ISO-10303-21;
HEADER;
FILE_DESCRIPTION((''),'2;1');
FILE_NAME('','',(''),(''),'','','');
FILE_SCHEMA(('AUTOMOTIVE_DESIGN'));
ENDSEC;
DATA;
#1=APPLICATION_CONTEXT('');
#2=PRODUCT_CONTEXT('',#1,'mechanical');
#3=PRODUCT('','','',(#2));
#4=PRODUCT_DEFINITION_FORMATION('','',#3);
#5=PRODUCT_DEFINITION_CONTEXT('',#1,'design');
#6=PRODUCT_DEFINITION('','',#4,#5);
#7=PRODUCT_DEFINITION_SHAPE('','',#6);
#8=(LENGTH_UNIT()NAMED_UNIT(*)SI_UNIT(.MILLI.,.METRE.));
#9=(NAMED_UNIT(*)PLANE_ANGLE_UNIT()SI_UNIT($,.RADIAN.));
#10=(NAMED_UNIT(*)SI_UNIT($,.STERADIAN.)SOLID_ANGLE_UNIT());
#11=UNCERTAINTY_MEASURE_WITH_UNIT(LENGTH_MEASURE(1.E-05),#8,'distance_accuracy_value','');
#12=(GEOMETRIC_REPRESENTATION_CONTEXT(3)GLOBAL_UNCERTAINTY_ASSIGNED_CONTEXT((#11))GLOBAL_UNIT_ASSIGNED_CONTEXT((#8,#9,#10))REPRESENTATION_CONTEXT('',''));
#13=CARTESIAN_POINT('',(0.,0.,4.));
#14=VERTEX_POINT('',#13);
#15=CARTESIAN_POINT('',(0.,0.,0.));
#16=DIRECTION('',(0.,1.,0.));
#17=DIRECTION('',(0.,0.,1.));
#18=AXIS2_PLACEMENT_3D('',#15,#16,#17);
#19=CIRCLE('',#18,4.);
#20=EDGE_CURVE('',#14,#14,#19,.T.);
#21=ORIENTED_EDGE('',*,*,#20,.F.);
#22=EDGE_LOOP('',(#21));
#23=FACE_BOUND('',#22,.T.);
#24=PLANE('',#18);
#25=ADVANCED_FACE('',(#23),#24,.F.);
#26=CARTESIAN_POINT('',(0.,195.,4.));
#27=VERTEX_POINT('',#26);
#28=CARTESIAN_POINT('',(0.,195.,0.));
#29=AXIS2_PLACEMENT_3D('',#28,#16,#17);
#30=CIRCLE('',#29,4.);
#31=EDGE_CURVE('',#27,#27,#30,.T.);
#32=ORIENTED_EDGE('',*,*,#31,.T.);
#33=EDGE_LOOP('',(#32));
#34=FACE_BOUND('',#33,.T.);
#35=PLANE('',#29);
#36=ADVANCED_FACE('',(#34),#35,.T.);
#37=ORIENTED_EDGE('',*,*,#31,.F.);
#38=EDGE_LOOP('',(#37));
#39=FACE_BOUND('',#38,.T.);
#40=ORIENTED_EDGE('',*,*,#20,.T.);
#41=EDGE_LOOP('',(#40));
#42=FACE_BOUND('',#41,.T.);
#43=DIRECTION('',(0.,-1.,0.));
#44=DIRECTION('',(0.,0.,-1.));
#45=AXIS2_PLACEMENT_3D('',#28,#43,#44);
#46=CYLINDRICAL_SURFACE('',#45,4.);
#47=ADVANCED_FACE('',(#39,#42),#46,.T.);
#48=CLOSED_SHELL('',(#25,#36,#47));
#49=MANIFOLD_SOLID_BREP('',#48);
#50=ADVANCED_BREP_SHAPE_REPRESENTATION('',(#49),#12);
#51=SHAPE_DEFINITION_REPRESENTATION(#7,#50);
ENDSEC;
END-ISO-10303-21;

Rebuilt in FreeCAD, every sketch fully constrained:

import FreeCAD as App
import Part
import Sketcher

V = App.Vector

doc = App.newDocument("Part")
body = doc.addObject("PartDesign::Body", "Body")

sketch1 = doc.addObject("Sketcher::SketchObject", "Sketch")
body.addObject(sketch1)
sketch1.AttachmentSupport = (doc.XZ_Plane, [""])
sketch1.MapMode = "FlatFace"
sketch1.addGeometry(Part.Circle(V(0, 0, 0), V(0, 0, 1), 4), False)
sketch1.addConstraint([
    Sketcher.Constraint("Coincident", 0, 3, -1, 1),
    Sketcher.Constraint("Diameter", 0, 8.0),
])
pad1 = doc.addObject("PartDesign::Pad", "Pad")
body.addObject(pad1)
pad1.Profile = sketch1
pad1.Length = 195
pad1.Reversed = True

doc.recompute()
